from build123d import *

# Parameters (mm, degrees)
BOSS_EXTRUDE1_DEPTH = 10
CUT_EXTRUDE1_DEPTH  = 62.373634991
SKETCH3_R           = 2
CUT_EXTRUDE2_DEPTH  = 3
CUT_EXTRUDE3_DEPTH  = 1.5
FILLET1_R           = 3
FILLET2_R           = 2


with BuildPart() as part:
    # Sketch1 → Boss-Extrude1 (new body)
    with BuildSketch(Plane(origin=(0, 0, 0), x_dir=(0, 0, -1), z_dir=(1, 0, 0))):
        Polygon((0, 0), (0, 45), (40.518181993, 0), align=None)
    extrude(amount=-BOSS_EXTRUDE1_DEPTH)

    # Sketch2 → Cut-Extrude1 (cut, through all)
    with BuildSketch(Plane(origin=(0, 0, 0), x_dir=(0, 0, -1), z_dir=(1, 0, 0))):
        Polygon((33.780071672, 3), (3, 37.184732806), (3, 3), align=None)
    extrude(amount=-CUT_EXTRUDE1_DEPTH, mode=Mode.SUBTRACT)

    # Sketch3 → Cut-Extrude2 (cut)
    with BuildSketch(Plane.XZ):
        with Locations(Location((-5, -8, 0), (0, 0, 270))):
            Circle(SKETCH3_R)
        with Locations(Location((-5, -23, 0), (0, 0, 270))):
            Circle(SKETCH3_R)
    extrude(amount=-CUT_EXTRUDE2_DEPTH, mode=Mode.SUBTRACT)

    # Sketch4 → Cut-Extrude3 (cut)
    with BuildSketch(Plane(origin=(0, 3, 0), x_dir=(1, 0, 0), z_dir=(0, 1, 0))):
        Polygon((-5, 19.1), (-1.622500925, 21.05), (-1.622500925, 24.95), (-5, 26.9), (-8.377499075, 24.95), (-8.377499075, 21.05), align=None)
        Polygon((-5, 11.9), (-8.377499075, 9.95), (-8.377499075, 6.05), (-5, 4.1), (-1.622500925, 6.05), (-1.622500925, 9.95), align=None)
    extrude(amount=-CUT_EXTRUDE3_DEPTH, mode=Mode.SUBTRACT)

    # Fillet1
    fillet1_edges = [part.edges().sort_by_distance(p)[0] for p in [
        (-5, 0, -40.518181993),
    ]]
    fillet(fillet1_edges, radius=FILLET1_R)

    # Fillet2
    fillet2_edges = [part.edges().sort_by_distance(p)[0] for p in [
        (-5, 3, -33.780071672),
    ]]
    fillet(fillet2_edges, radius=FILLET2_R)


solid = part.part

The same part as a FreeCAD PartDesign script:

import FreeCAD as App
import Part
import Sketcher
Q = App.Units.Quantity


def edges_at(feature, points):
    """Names of the edges that pass closest to the given points."""
    edges = feature.Shape.Edges
    near = lambda p: min(range(len(edges)), key=lambda i: edges[i].distToShape(Part.Vertex(*p))[0])
    return sorted({f"Edge{near(p) + 1}" for p in points})


def add_polygon(sketch, points):
    """Adds a closed chain of lines whose ends are joined by coincident constraints."""
    first, n = sketch.GeometryCount, len(points)
    for a, b in zip(points, points[1:] + points[:1]):
        sketch.addGeometry(Part.LineSegment(App.Vector(*a, 0), App.Vector(*b, 0)), False)
    for i in range(n):
        sketch.addConstraint(Sketcher.Constraint("Coincident", first + i, 2, first + (i + 1) % n, 1))

doc = App.newDocument("Part")
body = doc.addObject("PartDesign::Body", "Body")

# Sketch on YZ plane
sketch1 = body.newObject("Sketcher::SketchObject", "Sketch")
sketch1.AttachmentSupport = (doc.getObject("YZ_Plane"), [""])
sketch1.MapMode = "FlatFace"
add_polygon(sketch1, [(45, 0), (0, 0), (0, -41)])  # lines 0-2
sketch1.addConstraint(Sketcher.Constraint("Horizontal", 0))
sketch1.addConstraint(Sketcher.Constraint("Vertical", 1))
sketch1.addConstraint(Sketcher.Constraint("Coincident", 0, 2, -1, 1))
sketch1.addConstraint(Sketcher.Constraint("DistanceX", 0, 2, 0, 1, 45.0))
sketch1.addConstraint(Sketcher.Constraint("Angle", 2, Q("42 deg")))
pad1 = body.newObject("PartDesign::Pad", "Pad")
pad1.Profile = sketch1
pad1.Length = 10
pad1.Reversed = True

# Sketch on YZ plane
sketch2 = body.newObject("Sketcher::SketchObject", "Sketch001")
sketch2.AttachmentSupport = (doc.getObject("YZ_Plane"), [""])
sketch2.MapMode = "FlatFace"
add_polygon(sketch2, [(3, -34), (37, -3), (3, -3)])  # lines 0-2
sketch2.addConstraint(Sketcher.Constraint("Horizontal", 1))
sketch2.addConstraint(Sketcher.Constraint("Vertical", 2))
sketch2.addConstraint(Sketcher.Constraint("Angle", 0, Q("42 deg")))
sketch2.addConstraint(Sketcher.Constraint("DistanceY", 0, 2, -1, 1, 3.0))
sketch2.addConstraint(Sketcher.Constraint("DistanceX", -1, 1, 1, 2, 3.0))
sketch2.addConstraint(Sketcher.Constraint("DistanceY", 2, 2, 2, 1, 30.780072))
pocket1 = body.newObject("PartDesign::Pocket", "Pocket")
pocket1.Profile = sketch2
pocket1.Type = "ThroughAll"

# Sketch on XZ plane
sketch3 = body.newObject("Sketcher::SketchObject", "Sketch002")
sketch3.AttachmentSupport = (doc.getObject("XZ_Plane"), [""])
sketch3.MapMode = "FlatFace"
sketch3.addGeometry(Part.Circle(App.Vector(-5, -8, 0), App.Vector(0, 0, 1), 2), False)
sketch3.addGeometry(Part.Circle(App.Vector(-5, -23, 0), App.Vector(0, 0, 1), 2), False)
sketch3.addConstraint(Sketcher.Constraint("Equal", 0, 1))
sketch3.addConstraint(Sketcher.Constraint("Vertical", 0, 3, 1, 3))
sketch3.addConstraint(Sketcher.Constraint("Diameter", 0, 4.0))
sketch3.addConstraint(Sketcher.Constraint("DistanceX", 0, 3, -1, 1, 5.0))
sketch3.addConstraint(Sketcher.Constraint("DistanceY", 0, 3, -1, 1, 8.0))
sketch3.addConstraint(Sketcher.Constraint("DistanceY", 1, 3, -1, 1, 23.0))
pocket2 = body.newObject("PartDesign::Pocket", "Pocket001")
pocket2.Profile = sketch3
pocket2.Length = 3

# Sketch on XZ plane
sketch4 = body.newObject("Sketcher::SketchObject", "Sketch003")
sketch4.AttachmentSupport = (doc.getObject("XZ_Plane"), [""])
sketch4.MapMode = "FlatFace"
sketch4.AttachmentOffset = App.Placement(App.Vector(0, 0, -3), App.Rotation())
add_polygon(sketch4, [(-5, -19.1), (-1.6, -21.1), (-1.6, -24.9), (-5, -26.9), (-8.4, -24.9), (-8.4, -21.1)])  # lines 0-5
add_polygon(sketch4, [(-5, -11.9), (-8.4, -9.9), (-8.4, -6), (-5, -4.1), (-1.6, -6), (-1.6, -9.9)])  # lines 6-11
sketch4.addConstraint(Sketcher.Constraint("Vertical", 1))
sketch4.addConstraint(Sketcher.Constraint("Vertical", 4))
sketch4.addConstraint(Sketcher.Constraint("Vertical", 7))
sketch4.addConstraint(Sketcher.Constraint("Vertical", 10))
sketch4.addConstraint(Sketcher.Constraint("Parallel", 0, 3))
sketch4.addConstraint(Sketcher.Constraint("Parallel", 2, 5))
sketch4.addConstraint(Sketcher.Constraint("Parallel", 3, 6))
sketch4.addConstraint(Sketcher.Constraint("Parallel", 5, 8))
sketch4.addConstraint(Sketcher.Constraint("Parallel", 6, 9))
sketch4.addConstraint(Sketcher.Constraint("Parallel", 8, 11))
sketch4.addConstraint(Sketcher.Constraint("Horizontal", 1, 2, 3, 2))
sketch4.addConstraint(Sketcher.Constraint("Horizontal", 0, 2, 4, 2))
sketch4.addConstraint(Sketcher.Constraint("Horizontal", 7, 2, 9, 2))
sketch4.addConstraint(Sketcher.Constraint("Horizontal", 6, 2, 10, 2))
sketch4.addConstraint(Sketcher.Constraint("Vertical", 2, 2, 5, 2))
sketch4.addConstraint(Sketcher.Constraint("Vertical", 4, 2, 6, 2))
sketch4.addConstraint(Sketcher.Constraint("Vertical", 5, 2, 8, 2))
sketch4.addConstraint(Sketcher.Constraint("Equal", 4, 7))
sketch4.addConstraint(Sketcher.Constraint("Angle", 0, Q("-30 deg")))
sketch4.addConstraint(Sketcher.Constraint("DistanceY", 1, 2, 1, 1, 3.9))
sketch4.addConstraint(Sketcher.Constraint("DistanceX", 2, 2, -1, 1, 5.0))
sketch4.addConstraint(Sketcher.Constraint("DistanceY", 3, 2, 6, 2, 15.0))
sketch4.addConstraint(Sketcher.Constraint("Distance", 0, 3.9))
sketch4.addConstraint(Sketcher.Constraint("DistanceY", 2, 2, -1, 1, 26.9))
pocket3 = body.newObject("PartDesign::Pocket", "Pocket002")
pocket3.Profile = sketch4
pocket3.Length = 1.5
pocket3.Reversed = True
doc.recompute()

fillet = body.newObject("PartDesign::Fillet", "Fillet")
fillet.Base = (pocket3, edges_at(pocket3, [(-5, 0, -40.518)]))
fillet.Radius = 3
doc.recompute()

fillet2 = body.newObject("PartDesign::Fillet", "Fillet001")
fillet2.Base = (fillet, edges_at(fillet, [(-5, 3, -33.78)]))
fillet2.Radius = 2

doc.recompute()
